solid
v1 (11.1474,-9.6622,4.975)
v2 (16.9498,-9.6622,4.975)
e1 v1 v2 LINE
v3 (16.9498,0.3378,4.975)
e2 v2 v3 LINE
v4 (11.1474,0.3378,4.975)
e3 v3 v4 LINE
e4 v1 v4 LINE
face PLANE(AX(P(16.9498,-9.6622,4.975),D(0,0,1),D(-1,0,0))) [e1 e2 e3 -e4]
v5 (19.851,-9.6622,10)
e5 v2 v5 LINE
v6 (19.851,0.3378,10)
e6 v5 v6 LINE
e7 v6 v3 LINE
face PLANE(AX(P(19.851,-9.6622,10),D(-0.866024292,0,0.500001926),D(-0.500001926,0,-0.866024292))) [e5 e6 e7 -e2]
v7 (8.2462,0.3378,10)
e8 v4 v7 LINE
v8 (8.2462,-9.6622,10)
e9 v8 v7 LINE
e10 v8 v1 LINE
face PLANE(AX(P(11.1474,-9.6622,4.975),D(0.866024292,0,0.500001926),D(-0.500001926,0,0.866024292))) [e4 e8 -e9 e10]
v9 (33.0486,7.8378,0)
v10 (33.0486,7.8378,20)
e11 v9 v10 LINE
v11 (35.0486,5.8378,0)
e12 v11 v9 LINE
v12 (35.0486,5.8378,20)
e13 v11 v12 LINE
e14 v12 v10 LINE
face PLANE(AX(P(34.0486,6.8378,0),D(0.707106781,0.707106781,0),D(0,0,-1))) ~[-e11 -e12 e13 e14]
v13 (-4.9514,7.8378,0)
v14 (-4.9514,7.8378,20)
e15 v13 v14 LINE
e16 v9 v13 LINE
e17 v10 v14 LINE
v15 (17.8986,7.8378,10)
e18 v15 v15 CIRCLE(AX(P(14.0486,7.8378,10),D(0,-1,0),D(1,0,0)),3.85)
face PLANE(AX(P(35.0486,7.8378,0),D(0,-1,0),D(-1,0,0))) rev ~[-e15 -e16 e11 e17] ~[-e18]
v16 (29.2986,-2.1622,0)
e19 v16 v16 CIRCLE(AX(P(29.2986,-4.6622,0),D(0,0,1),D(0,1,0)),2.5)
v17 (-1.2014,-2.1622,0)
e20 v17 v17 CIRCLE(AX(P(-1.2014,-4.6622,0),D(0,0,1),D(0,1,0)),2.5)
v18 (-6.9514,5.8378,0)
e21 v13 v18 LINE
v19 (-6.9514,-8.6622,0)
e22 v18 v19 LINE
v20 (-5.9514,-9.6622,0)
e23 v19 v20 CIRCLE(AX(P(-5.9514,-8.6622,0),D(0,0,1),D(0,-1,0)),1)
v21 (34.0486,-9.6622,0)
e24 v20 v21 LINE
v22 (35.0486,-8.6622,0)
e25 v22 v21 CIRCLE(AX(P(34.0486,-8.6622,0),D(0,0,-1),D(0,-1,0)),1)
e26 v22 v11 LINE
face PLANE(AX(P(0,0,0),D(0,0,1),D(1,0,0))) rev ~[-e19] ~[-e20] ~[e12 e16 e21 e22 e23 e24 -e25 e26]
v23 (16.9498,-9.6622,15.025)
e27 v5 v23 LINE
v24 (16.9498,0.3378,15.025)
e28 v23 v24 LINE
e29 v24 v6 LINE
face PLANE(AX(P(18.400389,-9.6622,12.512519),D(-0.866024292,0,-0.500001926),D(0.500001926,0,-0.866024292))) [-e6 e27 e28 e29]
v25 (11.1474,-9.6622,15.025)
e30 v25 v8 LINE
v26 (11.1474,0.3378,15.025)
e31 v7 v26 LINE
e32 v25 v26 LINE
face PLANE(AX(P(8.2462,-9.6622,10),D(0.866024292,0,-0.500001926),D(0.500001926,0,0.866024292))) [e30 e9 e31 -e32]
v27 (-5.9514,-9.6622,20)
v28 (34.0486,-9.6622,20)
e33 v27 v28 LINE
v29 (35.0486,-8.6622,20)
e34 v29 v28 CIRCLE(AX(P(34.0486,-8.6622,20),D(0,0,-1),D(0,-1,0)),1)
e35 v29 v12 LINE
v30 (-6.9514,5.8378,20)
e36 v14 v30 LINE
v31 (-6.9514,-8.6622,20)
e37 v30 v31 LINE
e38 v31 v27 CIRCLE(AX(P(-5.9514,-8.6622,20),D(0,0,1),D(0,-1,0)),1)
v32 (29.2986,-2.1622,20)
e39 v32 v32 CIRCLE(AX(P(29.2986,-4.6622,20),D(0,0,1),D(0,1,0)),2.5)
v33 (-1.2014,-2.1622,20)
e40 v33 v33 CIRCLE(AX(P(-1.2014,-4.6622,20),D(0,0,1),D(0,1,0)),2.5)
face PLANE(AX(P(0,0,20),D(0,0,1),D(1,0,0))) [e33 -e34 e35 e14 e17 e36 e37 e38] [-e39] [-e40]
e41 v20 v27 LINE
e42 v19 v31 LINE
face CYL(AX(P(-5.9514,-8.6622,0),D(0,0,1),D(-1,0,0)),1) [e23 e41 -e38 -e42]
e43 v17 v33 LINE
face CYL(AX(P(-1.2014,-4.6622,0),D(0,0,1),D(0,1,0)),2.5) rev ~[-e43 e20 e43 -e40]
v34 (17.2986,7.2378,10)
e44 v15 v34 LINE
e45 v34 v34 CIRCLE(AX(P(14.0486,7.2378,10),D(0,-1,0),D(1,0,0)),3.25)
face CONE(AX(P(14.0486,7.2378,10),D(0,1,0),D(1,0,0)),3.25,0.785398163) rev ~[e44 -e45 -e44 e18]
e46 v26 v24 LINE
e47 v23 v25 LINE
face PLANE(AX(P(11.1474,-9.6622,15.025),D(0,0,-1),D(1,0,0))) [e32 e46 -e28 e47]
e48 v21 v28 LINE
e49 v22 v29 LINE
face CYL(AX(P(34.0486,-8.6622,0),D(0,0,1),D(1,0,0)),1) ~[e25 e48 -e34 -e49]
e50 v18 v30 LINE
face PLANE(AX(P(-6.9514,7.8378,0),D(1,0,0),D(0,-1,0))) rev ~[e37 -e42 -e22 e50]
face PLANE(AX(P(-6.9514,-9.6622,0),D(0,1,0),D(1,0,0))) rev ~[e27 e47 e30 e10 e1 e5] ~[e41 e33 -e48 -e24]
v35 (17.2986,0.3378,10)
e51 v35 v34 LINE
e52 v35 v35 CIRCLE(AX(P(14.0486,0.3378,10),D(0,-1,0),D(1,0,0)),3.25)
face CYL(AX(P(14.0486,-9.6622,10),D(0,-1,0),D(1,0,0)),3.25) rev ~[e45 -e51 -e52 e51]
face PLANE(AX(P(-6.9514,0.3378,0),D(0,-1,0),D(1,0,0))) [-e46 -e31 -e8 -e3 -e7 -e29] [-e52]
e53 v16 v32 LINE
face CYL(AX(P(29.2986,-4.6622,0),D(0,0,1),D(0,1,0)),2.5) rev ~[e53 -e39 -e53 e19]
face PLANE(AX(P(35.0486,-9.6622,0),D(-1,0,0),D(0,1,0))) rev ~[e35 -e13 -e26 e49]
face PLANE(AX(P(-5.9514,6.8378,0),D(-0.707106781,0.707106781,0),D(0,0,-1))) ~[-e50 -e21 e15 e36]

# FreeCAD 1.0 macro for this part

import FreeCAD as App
import Part
import Sketcher

V = App.Vector
Q = App.Units.Quantity


def edges_at(feature, points):
    """Names of the edges that pass closest to the given points."""
    edges = feature.Shape.Edges
    near = lambda p: min(range(len(edges)), key=lambda i: edges[i].distToShape(Part.Vertex(*p))[0])
    return sorted({f"Edge{near(p) + 1}" for p in points})


def add_polygon(sketch, points):
    """Adds a closed chain of lines whose ends are joined by coincident constraints."""
    first, n = sketch.GeometryCount, len(points)
    for a, b in zip(points, points[1:] + points[:1]):
        sketch.addGeometry(Part.LineSegment(App.Vector(*a, 0), App.Vector(*b, 0)), False)
    for i in range(n):
        sketch.addConstraint(Sketcher.Constraint("Coincident", first + i, 2, first + (i + 1) % n, 1))

doc = App.newDocument("Part")
body = doc.addObject("PartDesign::Body", "Body")

# Sketch on XY plane
sketch1 = body.newObject("Sketcher::SketchObject", "Sketch")
sketch1.AttachmentSupport = (doc.getObject("XY_Plane"), [""])
sketch1.MapMode = "FlatFace"
add_polygon(sketch1, [(-7, 8), (-7, -10), (35, -10), (35, 8)])  # lines 0-3
sketch1.addConstraint([
    Sketcher.Constraint("Vertical", 0),
    Sketcher.Constraint("Horizontal", 1),
    Sketcher.Constraint("Vertical", 2),
    Sketcher.Constraint("Horizontal", 3),
    Sketcher.Constraint("DistanceX", 1, 1, 1, 2, 42.0),
    Sketcher.Constraint("DistanceY", 0, 2, 0, 1, 17.5),
    Sketcher.Constraint("DistanceX", 0, 2, -1, 1, 6.9514),
    Sketcher.Constraint("DistanceY", 0, 2, -1, 1, 9.6622),
])
pad1 = body.newObject("PartDesign::Pad", "Pad")
pad1.Profile = sketch1
pad1.Length = 20

# Sketch on XY plane
sketch2 = body.newObject("Sketcher::SketchObject", "Sketch001")
sketch2.AttachmentSupport = (doc.getObject("XY_Plane"), [""])
sketch2.MapMode = "FlatFace"
sketch2.addGeometry([
    Part.Circle(V(-1.2, -4.7, 0), V(0, 0, 1), 2.5),
    Part.Circle(V(29.3, -4.7, 0), V(0, 0, 1), 2.5),
], False)
sketch2.addConstraint([
    Sketcher.Constraint("Equal", 0, 1),
    Sketcher.Constraint("Horizontal", 0, 3, 1, 3),
    Sketcher.Constraint("Diameter", 0, 5.0),
    Sketcher.Constraint("DistanceX", 0, 3, 1, 3, 30.5),
    Sketcher.Constraint("DistanceX", 0, 3, -1, 1, 1.2014),
    Sketcher.Constraint("DistanceY", 0, 3, -1, 1, 4.6622),
])
doc.recompute()
hole = body.newObject("PartDesign::Hole", "Hole")
hole.Profile = sketch2
hole.ThreadType = "None"
hole.Diameter = 5
hole.DepthType = "ThroughAll"
hole.Reversed = True

# Sketch on XZ plane
sketch3 = body.newObject("Sketcher::SketchObject", "Sketch002")
sketch3.AttachmentSupport = (doc.getObject("XZ_Plane"), [""])
sketch3.MapMode = "FlatFace"
sketch3.AttachmentOffset = App.Placement(V(0, 0, 9.6622), App.Rotation())
sketch3.addGeometry(Part.Circle(V(14, 10, 0), V(0, 0, 1), 3.2), False)
sketch3.addConstraint([
    Sketcher.Constraint("Diameter", 0, 6.5),
    Sketcher.Constraint("DistanceY", -1, 1, 0, 3, 10.0),
    Sketcher.Constraint("DistanceX", -1, 1, 0, 3, 14.0486),
])
pocket1 = body.newObject("PartDesign::Pocket", "Pocket")
pocket1.Profile = sketch3
pocket1.Type = "ThroughAll"

# Sketch on XZ plane
sketch4 = body.newObject("Sketcher::SketchObject", "Sketch003")
sketch4.AttachmentSupport = (doc.getObject("XZ_Plane"), [""])
sketch4.MapMode = "FlatFace"
sketch4.AttachmentOffset = App.Placement(V(0, 0, 9.6622), App.Rotation())
add_polygon(sketch4, [(19.9, 10), (16.9, 15), (11.1, 15), (8.2, 10), (11.1, 5), (16.9, 5)])  # lines 0-5
sketch4.addGeometry(Part.Circle(V(14, 10, 0), V(0, 0, 1), 3.2), False)  # 6
sketch4.addConstraint([
    Sketcher.Constraint("Horizontal", 1),
    Sketcher.Constraint("Horizontal", 4),
    Sketcher.Constraint("Parallel", 0, 3),
    Sketcher.Constraint("Parallel", 2, 5),
    Sketcher.Constraint("Horizontal", 6, 3, 2, 2),
    Sketcher.Constraint("Horizontal", 2, 2, 5, 2),
    Sketcher.Constraint("Vertical", 1, 2, 3, 2),
    Sketcher.Constraint("Vertical", 0, 2, 4, 2),
    Sketcher.Constraint("Diameter", 6, 6.5),
    Sketcher.Constraint("DistanceY", -1, 1, 6, 3, 10.0),
    Sketcher.Constraint("Angle", 0, Q("120.0001 deg")),
    Sketcher.Constraint("DistanceY", 3, 2, 1, 2, 10.05),
    Sketcher.Constraint("DistanceX", 1, 2, 1, 1, 5.8024),
    Sketcher.Constraint("DistanceX", -1, 1, 5, 2, 19.851),
    Sketcher.Constraint("DistanceX", -1, 1, 6, 3, 14.0486),
])
pocket2 = body.newObject("PartDesign::Pocket", "Pocket001")
pocket2.Profile = sketch4
pocket2.Length = 10
doc.recompute()

chamfer = body.newObject("PartDesign::Chamfer", "Chamfer")
chamfer.Base = (pocket2, edges_at(pocket2, [(10.799, 7.838, 10)]))
chamfer.Size = 0.6
doc.recompute()

fillet = body.newObject("PartDesign::Fillet", "Fillet")
fillet.Base = (chamfer, edges_at(chamfer, [(-6.951, -9.662, 10), (35.049, -9.662, 10)]))
fillet.Radius = 1
doc.recompute()

chamfer2 = body.newObject("PartDesign::Chamfer", "Chamfer001")
chamfer2.Base = (fillet, edges_at(fillet, [(-6.951, 7.838, 10), (35.049, 7.838, 10)]))
chamfer2.Size = 2

doc.recompute()
